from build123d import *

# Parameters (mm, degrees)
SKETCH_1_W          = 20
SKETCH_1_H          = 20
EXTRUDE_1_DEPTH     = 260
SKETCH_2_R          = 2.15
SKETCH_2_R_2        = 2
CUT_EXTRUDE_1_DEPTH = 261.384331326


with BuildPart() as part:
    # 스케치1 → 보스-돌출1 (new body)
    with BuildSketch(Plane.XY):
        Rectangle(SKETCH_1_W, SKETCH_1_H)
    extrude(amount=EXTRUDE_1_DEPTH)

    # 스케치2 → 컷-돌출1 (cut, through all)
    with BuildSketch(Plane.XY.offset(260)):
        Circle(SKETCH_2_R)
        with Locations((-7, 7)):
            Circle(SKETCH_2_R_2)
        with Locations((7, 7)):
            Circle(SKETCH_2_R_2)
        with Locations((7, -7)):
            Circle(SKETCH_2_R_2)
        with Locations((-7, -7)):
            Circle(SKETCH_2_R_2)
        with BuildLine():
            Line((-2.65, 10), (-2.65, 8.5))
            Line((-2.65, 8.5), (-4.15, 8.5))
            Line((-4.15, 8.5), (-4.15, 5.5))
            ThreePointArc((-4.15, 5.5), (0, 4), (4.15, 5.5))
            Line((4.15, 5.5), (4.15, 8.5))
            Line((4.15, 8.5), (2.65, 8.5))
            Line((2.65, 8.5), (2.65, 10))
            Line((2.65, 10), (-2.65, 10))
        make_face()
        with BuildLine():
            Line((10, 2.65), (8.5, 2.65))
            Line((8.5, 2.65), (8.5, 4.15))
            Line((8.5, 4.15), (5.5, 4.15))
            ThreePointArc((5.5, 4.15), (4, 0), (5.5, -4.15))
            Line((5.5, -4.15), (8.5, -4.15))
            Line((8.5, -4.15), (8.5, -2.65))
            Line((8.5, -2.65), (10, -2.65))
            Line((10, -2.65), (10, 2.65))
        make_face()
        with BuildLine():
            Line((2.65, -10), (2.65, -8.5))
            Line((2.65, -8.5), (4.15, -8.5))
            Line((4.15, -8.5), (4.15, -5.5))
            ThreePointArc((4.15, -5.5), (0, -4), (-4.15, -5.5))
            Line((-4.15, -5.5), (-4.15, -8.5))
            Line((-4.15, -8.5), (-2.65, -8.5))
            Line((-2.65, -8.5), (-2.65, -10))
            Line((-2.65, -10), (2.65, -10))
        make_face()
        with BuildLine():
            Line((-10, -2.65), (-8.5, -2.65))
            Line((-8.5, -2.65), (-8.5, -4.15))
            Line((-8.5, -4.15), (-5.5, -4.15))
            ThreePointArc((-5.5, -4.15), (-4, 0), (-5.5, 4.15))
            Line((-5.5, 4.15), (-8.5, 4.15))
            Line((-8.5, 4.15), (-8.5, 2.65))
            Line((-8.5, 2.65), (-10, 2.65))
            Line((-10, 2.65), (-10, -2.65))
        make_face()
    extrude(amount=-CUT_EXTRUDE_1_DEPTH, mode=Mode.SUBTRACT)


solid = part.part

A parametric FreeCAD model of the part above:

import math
import FreeCAD as App
import Part
import Sketcher
from FreeCAD import Vector


def add_polygon(sketch, points):
    """Adds a closed chain of lines whose ends are joined by coincident constraints."""
    first, n = sketch.GeometryCount, len(points)
    for a, b in zip(points, points[1:] + points[:1]):
        sketch.addGeometry(Part.LineSegment(App.Vector(*a, 0), App.Vector(*b, 0)), False)
    for i in range(n):
        sketch.addConstraint(Sketcher.Constraint("Coincident", first + i, 2, first + (i + 1) % n, 1))

doc = App.newDocument("Part")
body = doc.addObject("PartDesign::Body", "Body")

# Sketch on XY plane
sketch1 = body.newObject("Sketcher::SketchObject", "Sketch")
sketch1.AttachmentSupport = (doc.getObject("XY_Plane"), [""])
sketch1.MapMode = "FlatFace"
add_polygon(sketch1, [(-10, 10), (-10, -10), (10, -10), (10, 10)])  # lines 0-3
sketch1.addConstraint(Sketcher.Constraint("Vertical", 0))
sketch1.addConstraint(Sketcher.Constraint("Horizontal", 1))
sketch1.addConstraint(Sketcher.Constraint("Vertical", 2))
sketch1.addConstraint(Sketcher.Constraint("Horizontal", 3))
sketch1.addConstraint(Sketcher.Constraint("Symmetric", 0, 2, 2, 2, -1, 1))
sketch1.addConstraint(Sketcher.Constraint("Equal", 3, 0))
sketch1.addConstraint(Sketcher.Constraint("DistanceX", 1, 1, 1, 2, 20.0))
pad1 = body.newObject("PartDesign::Pad", "Pad")
pad1.Profile = sketch1
pad1.Length = 260

# Sketch on XY plane
sketch2 = body.newObject("Sketcher::SketchObject", "Sketch001")
sketch2.AttachmentSupport = (doc.getObject("XY_Plane"), [""])
sketch2.MapMode = "FlatFace"
sketch2.AttachmentOffset = App.Placement(Vector(0, 0, 260), App.Rotation())
sketch2.addGeometry(Part.Circle(Vector(0, 0, 0), Vector(0, 0, 1), 2.1), False)
sketch2.addGeometry(Part.Circle(Vector(-7, 7, 0), Vector(0, 0, 1), 2), False)
sketch2.addGeometry(Part.Circle(Vector(7, 7, 0), Vector(0, 0, 1), 2), False)
sketch2.addGeometry(Part.Circle(Vector(7, -7, 0), Vector(0, 0, 1), 2), False)
sketch2.addGeometry(Part.Circle(Vector(-7, -7, 0), Vector(0, 0, 1), 2), False)
sketch2.addGeometry(Part.LineSegment(Vector(-2.6, 10, 0), Vector(-2.6, 8.5, 0)), False)
sketch2.addGeometry(Part.LineSegment(Vector(-2.6, 8.5, 0), Vector(-4.2, 8.5, 0)), False)
sketch2.addGeometry(Part.LineSegment(Vector(-4.2, 8.5, 0), Vector(-4.2, 5.5, 0)), False)
sketch2.addGeometry(Part.ArcOfCircle(Part.Circle(Vector(0, 10.5, 0), Vector(0, 0, 1), 6.5), math.radians(-130), math.radians(-50)), False)
sketch2.addGeometry(Part.LineSegment(Vector(4.2, 5.5, 0), Vector(4.2, 8.5, 0)), False)
sketch2.addGeometry(Part.LineSegment(Vector(4.2, 8.5, 0), Vector(2.6, 8.5, 0)), False)
sketch2.addGeometry(Part.LineSegment(Vector(2.6, 8.5, 0), Vector(2.6, 10, 0)), False)
sketch2.addGeometry(Part.LineSegment(Vector(2.6, 10, 0), Vector(-2.6, 10, 0)), False)
sketch2.addGeometry(Part.LineSegment(Vector(10, 2.6, 0), Vector(8.5, 2.6, 0)), False)
sketch2.addGeometry(Part.LineSegment(Vector(8.5, 2.6, 0), Vector(8.5, 4.2, 0)), False)
sketch2.addGeometry(Part.LineSegment(Vector(8.5, 4.2, 0), Vector(5.5, 4.2, 0)), False)
sketch2.addGeometry(Part.ArcOfCircle(Part.Circle(Vector(10.5, 0, 0), Vector(0, 0, 1), 6.5), math.radians(140), math.radians(220)), False)
sketch2.addGeometry(Part.LineSegment(Vector(5.5, -4.2, 0), Vector(8.5, -4.2, 0)), False)
sketch2.addGeometry(Part.LineSegment(Vector(8.5, -4.2, 0), Vector(8.5, -2.6, 0)), False)
sketch2.addGeometry(Part.LineSegment(Vector(8.5, -2.6, 0), Vector(10, -2.6, 0)), False)
sketch2.addGeometry(Part.LineSegment(Vector(10, -2.6, 0), Vector(10, 2.6, 0)), False)
sketch2.addGeometry(Part.LineSegment(Vector(2.6, -10, 0), Vector(2.6, -8.5, 0)), False)
sketch2.addGeometry(Part.LineSegment(Vector(2.6, -8.5, 0), Vector(4.2, -8.5, 0)), False)
sketch2.addGeometry(Part.LineSegment(Vector(4.2, -8.5, 0), Vector(4.2, -5.5, 0)), False)
sketch2.addGeometry(Part.ArcOfCircle(Part.Circle(Vector(0, -10.5, 0), Vector(0, 0, 1), 6.5), math.radians(50), math.radians(130)), False)
sketch2.addGeometry(Part.LineSegment(Vector(-4.2, -5.5, 0), Vector(-4.2, -8.5, 0)), False)
sketch2.addGeometry(Part.LineSegment(Vector(-4.2, -8.5, 0), Vector(-2.6, -8.5, 0)), False)
sketch2.addGeometry(Part.LineSegment(Vector(-2.6, -8.5, 0), Vector(-2.6, -10, 0)), False)
sketch2.addGeometry(Part.LineSegment(Vector(-2.6, -10, 0), Vector(2.6, -10, 0)), False)
sketch2.addGeometry(Part.LineSegment(Vector(-10, -2.6, 0), Vector(-8.5, -2.6, 0)), False)
sketch2.addGeometry(Part.LineSegment(Vector(-8.5, -2.6, 0), Vector(-8.5, -4.2, 0)), False)
sketch2.addGeometry(Part.LineSegment(Vector(-8.5, -4.2, 0), Vector(-5.5, -4.2, 0)), False)
sketch2.addGeometry(Part.ArcOfCircle(Part.Circle(Vector(-10.5, 0, 0), Vector(0, 0, 1), 6.5), math.radians(-40), math.radians(40)), False)
sketch2.addGeometry(Part.LineSegment(Vector(-5.5, 4.2, 0), Vector(-8.5, 4.2, 0)), False)
sketch2.addGeometry(Part.LineSegment(Vector(-8.5, 4.2, 0), Vector(-8.5, 2.6, 0)), False)
sketch2.addGeometry(Part.LineSegment(Vector(-8.5, 2.6, 0), Vector(-10, 2.6, 0)), False)
sketch2.addGeometry(Part.LineSegment(Vector(-10, 2.6, 0), Vector(-10, -2.6, 0)), False)
sketch2.addConstraint(Sketcher.Constraint("Coincident", 5, 2, 6, 1))
sketch2.addConstraint(Sketcher.Constraint("Coincident", 6, 2, 7, 1))
sketch2.addConstraint(Sketcher.Constraint("Coincident", 7, 2, 8, 1))
sketch2.addConstraint(Sketcher.Constraint("Coincident", 8, 2, 9, 1))
sketch2.addConstraint(Sketcher.Constraint("Coincident", 9, 2, 10, 1))
sketch2.addConstraint(Sketcher.Constraint("Coincident", 10, 2, 11, 1))
sketch2.addConstraint(Sketcher.Constraint("Coincident", 11, 2, 12, 1))
sketch2.addConstraint(Sketcher.Constraint("Coincident", 12, 2, 5, 1))
sketch2.addConstraint(Sketcher.Constraint("Coincident", 13, 2, 14, 1))
sketch2.addConstraint(Sketcher.Constraint("Coincident", 14, 2, 15, 1))
sketch2.addConstraint(Sketcher.Constraint("Coincident", 15, 2, 16, 1))
sketch2.addConstraint(Sketcher.Constraint("Coincident", 16, 2, 17, 1))
sketch2.addConstraint(Sketcher.Constraint("Coincident", 17, 2, 18, 1))
sketch2.addConstraint(Sketcher.Constraint("Coincident", 18, 2, 19, 1))
sketch2.addConstraint(Sketcher.Constraint("Coincident", 19, 2, 20, 1))
sketch2.addConstraint(Sketcher.Constraint("Coincident", 20, 2, 13, 1))
sketch2.addConstraint(Sketcher.Constraint("Coincident", 21, 2, 22, 1))
sketch2.addConstraint(Sketcher.Constraint("Coincident", 22, 2, 23, 1))
sketch2.addConstraint(Sketcher.Constraint("Coincident", 23, 2, 24, 1))
sketch2.addConstraint(Sketcher.Constraint("Coincident", 24, 2, 25, 1))
sketch2.addConstraint(Sketcher.Constraint("Coincident", 25, 2, 26, 1))
sketch2.addConstraint(Sketcher.Constraint("Coincident", 26, 2, 27, 1))
sketch2.addConstraint(Sketcher.Constraint("Coincident", 27, 2, 28, 1))
sketch2.addConstraint(Sketcher.Constraint("Coincident", 28, 2, 21, 1))
sketch2.addConstraint(Sketcher.Constraint("Coincident", 29, 2, 30, 1))
sketch2.addConstraint(Sketcher.Constraint("Coincident", 30, 2, 31, 1))
sketch2.addConstraint(Sketcher.Constraint("Coincident", 31, 2, 32, 1))
sketch2.addConstraint(Sketcher.Constraint("Coincident", 32, 2, 33, 1))
sketch2.addConstraint(Sketcher.Constraint("Coincident", 33, 2, 34, 1))
sketch2.addConstraint(Sketcher.Constraint("Coincident", 34, 2, 35, 1))
sketch2.addConstraint(Sketcher.Constraint("Coincident", 35, 2, 36, 1))
sketch2.addConstraint(Sketcher.Constraint("Coincident", 36, 2, 29, 1))
sketch2.addConstraint(Sketcher.Constraint("Vertical", 5))
sketch2.addConstraint(Sketcher.Constraint("Horizontal", 6))
sketch2.addConstraint(Sketcher.Constraint("Vertical", 7))
sketch2.addConstraint(Sketcher.Constraint("Vertical", 9))
sketch2.addConstraint(Sketcher.Constraint("Horizontal", 10))
sketch2.addConstraint(Sketcher.Constraint("Vertical", 11))
sketch2.addConstraint(Sketcher.Constraint("Horizontal", 12))
sketch2.addConstraint(Sketcher.Constraint("Horizontal", 13))
sketch2.addConstraint(Sketcher.Constraint("Vertical", 14))
sketch2.addConstraint(Sketcher.Constraint("Horizontal", 15))
sketch2.addConstraint(Sketcher.Constraint("Horizontal", 17))
sketch2.addConstraint(Sketcher.Constraint("Vertical", 18))
sketch2.addConstraint(Sketcher.Constraint("Horizontal", 19))
sketch2.addConstraint(Sketcher.Constraint("Vertical", 20))
sketch2.addConstraint(Sketcher.Constraint("Vertical", 21))
sketch2.addConstraint(Sketcher.Constraint("Horizontal", 22))
sketch2.addConstraint(Sketcher.Constraint("Vertical", 23))
sketch2.addConstraint(Sketcher.Constraint("Vertical", 25))
sketch2.addConstraint(Sketcher.Constraint("Horizontal", 26))
sketch2.addConstraint(Sketcher.Constraint("Vertical", 27))
sketch2.addConstraint(Sketcher.Constraint("Horizontal", 28))
sketch2.addConstraint(Sketcher.Constraint("Horizontal", 29))
sketch2.addConstraint(Sketcher.Constraint("Vertical", 30))
sketch2.addConstraint(Sketcher.Constraint("Horizontal", 31))
sketch2.addConstraint(Sketcher.Constraint("Horizontal", 33))
sketch2.addConstraint(Sketcher.Constraint("Vertical", 34))
sketch2.addConstraint(Sketcher.Constraint("Horizontal", 35))
sketch2.addConstraint(Sketcher.Constraint("Vertical", 36))
sketch2.addConstraint(Sketcher.Constraint("Coincident", 0, 3, -1, 1))
sketch2.addConstraint(Sketcher.Constraint("Equal", 1, 2))
sketch2.addConstraint(Sketcher.Constraint("Equal", 2, 3))
sketch2.addConstraint(Sketcher.Constraint("Equal", 3, 4))
sketch2.addConstraint(Sketcher.Constraint("Equal", 8, 16))
sketch2.addConstraint(Sketcher.Constraint("Equal", 16, 24))
sketch2.addConstraint(Sketcher.Constraint("Equal", 24, 32))
sketch2.addConstraint(Sketcher.Constraint("Symmetric", 1, 3, 3, 3, -1, 1))
sketch2.addConstraint(Sketcher.Constraint("Symmetric", 2, 3, 4, 3, -1, 1))
sketch2.addConstraint(Sketcher.Constraint("Symmetric", 8, 3, 24, 3, -1, 1))
sketch2.addConstraint(Sketcher.Constraint("Symmetric", 16, 3, 32, 3, -1, 1))
sketch2.addConstraint(Sketcher.Constraint("Symmetric", 5, 2, 21, 2, -1, 1))
sketch2.addConstraint(Sketcher.Constraint("Symmetric", 9, 2, 25, 2, -1, 1))
sketch2.addConstraint(Sketcher.Constraint("Symmetric", 11, 2, 27, 2, -1, 1))
sketch2.addConstraint(Sketcher.Constraint("Symmetric", 13, 2, 29, 2, -1, 1))
sketch2.addConstraint(Sketcher.Constraint("Symmetric", 17, 2, 33, 2, -1, 1))
sketch2.addConstraint(Sketcher.Constraint("Symmetric", 19, 2, 35, 2, -1, 1))
sketch2.addConstraint(Sketcher.Constraint("Symmetric", 1, 3, 2, 3, -2))
sketch2.addConstraint(Sketcher.Constraint("Symmetric", 7, 2, 8, 2, -2))
sketch2.addConstraint(Sketcher.Constraint("Symmetric", 5, 2, 10, 2, -2))
sketch2.addConstraint(Sketcher.Constraint("Symmetric", 18, 2, 29, 2, -2))
sketch2.addConstraint(Sketcher.Constraint("Symmetric", 16, 2, 31, 2, -2))
sketch2.addConstraint(Sketcher.Constraint("Horizontal", 23, 2, 24, 2))
sketch2.addConstraint(Sketcher.Constraint("Horizontal", 15, 2, 32, 2))
sketch2.addConstraint(Sketcher.Constraint("Equal", 10, 13))
sketch2.addConstraint(Sketcher.Constraint("Equal", 35, 5))
sketch2.addConstraint(Sketcher.Constraint("Equal", 33, 7))
sketch2.addConstraint(Sketcher.Constraint("Equal", 11, 14))
sketch2.addConstraint(Sketcher.Constraint("Equal", 28, 20))
sketch2.addConstraint(Sketcher.Constraint("Diameter", 1, 4.0))
sketch2.addConstraint(Sketcher.Constraint("Diameter", 0, 4.3))
sketch2.addConstraint(Sketcher.Constraint("DistanceX", 15, 2, 15, 1, 3.0))
sketch2.addConstraint(Sketcher.Constraint("DistanceX", 6, 2, 6, 1, 1.5))
sketch2.addConstraint(Sketcher.Constraint("DistanceX", 12, 2, 12, 1, 5.3))
sketch2.addConstraint(Sketcher.Constraint("DistanceX", 1, 3, -1, 1, 7.0))
sketch2.addConstraint(Sketcher.Constraint("DistanceY", -1, 1, 1, 3, 7.0))
sketch2.addConstraint(Sketcher.Constraint("DistanceY", -1, 1, 11, 2, 10.0))
sketch2.addConstraint(Sketcher.Constraint("DistanceX", -1, 1, 19, 2, 10.0))
sketch2.addConstraint(Sketcher.Constraint("Radius", 8, 6.490833))
pocket1 = body.newObject("PartDesign::Pocket", "Pocket")
pocket1.Profile = sketch2
pocket1.Type = "ThroughAll"

doc.recompute()
